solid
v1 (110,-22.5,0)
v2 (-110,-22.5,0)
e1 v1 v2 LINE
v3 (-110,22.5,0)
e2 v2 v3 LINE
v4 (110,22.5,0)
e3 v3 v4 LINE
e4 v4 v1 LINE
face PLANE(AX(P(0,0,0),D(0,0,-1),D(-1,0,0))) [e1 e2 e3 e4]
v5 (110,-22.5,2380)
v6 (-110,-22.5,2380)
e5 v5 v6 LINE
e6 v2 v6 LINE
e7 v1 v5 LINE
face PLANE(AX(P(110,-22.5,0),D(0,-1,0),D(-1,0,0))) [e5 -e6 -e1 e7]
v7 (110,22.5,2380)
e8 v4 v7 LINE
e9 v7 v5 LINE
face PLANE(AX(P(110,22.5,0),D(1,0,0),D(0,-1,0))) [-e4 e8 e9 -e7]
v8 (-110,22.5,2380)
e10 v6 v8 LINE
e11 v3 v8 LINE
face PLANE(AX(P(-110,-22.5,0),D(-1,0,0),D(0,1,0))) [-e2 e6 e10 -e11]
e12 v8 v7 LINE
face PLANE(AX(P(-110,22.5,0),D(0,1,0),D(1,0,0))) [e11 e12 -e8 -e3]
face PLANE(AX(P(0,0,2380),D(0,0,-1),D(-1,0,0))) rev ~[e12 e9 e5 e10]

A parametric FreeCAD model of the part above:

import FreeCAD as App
import Part
import Sketcher
Q = App.Units.Quantity

doc = App.newDocument("Part")
body = doc.addObject("PartDesign::Body", "Body")

# Sketch on XY plane
sketch1 = body.newObject("Sketcher::SketchObject", "Sketch")
sketch1.AttachmentSupport = (doc.getObject("XY_Plane"), [""])
sketch1.MapMode = "FlatFace"
sketch1.addGeometry([
    Part.LineSegment(App.Vector(110, 22, 0), App.Vector(110, -22, 0)),
    Part.LineSegment(App.Vector(110, -22, 0), App.Vector(-110, -22, 0)),
    Part.LineSegment(App.Vector(-110, -22, 0), App.Vector(-110, 22, 0)),
    Part.LineSegment(App.Vector(-110, 22, 0), App.Vector(110, 22, 0)),
], False)
sketch1.addConstraint([
    Sketcher.Constraint("Coincident", 0, 2, 1, 1),
    Sketcher.Constraint("Coincident", 1, 2, 2, 1),
    Sketcher.Constraint("Coincident", 2, 2, 3, 1),
    Sketcher.Constraint("Coincident", 3, 2, 0, 1),
    Sketcher.Constraint("Vertical", 0),
    Sketcher.Constraint("Horizontal", 1),
    Sketcher.Constraint("Vertical", 2),
    Sketcher.Constraint("Horizontal", 3),
    Sketcher.Constraint("Symmetric", 0, 2, 2, 2, -1, 1),
    Sketcher.Constraint("DistanceX", 1, 2, 1, 1, Q("220 mm")),
    Sketcher.Constraint("DistanceY", 0, 2, 0, 1, Q("45 mm")),
])
pad1 = body.newObject("PartDesign::Pad", "Pad")
pad1.Profile = sketch1
pad1.Length = 2380

doc.recompute()
